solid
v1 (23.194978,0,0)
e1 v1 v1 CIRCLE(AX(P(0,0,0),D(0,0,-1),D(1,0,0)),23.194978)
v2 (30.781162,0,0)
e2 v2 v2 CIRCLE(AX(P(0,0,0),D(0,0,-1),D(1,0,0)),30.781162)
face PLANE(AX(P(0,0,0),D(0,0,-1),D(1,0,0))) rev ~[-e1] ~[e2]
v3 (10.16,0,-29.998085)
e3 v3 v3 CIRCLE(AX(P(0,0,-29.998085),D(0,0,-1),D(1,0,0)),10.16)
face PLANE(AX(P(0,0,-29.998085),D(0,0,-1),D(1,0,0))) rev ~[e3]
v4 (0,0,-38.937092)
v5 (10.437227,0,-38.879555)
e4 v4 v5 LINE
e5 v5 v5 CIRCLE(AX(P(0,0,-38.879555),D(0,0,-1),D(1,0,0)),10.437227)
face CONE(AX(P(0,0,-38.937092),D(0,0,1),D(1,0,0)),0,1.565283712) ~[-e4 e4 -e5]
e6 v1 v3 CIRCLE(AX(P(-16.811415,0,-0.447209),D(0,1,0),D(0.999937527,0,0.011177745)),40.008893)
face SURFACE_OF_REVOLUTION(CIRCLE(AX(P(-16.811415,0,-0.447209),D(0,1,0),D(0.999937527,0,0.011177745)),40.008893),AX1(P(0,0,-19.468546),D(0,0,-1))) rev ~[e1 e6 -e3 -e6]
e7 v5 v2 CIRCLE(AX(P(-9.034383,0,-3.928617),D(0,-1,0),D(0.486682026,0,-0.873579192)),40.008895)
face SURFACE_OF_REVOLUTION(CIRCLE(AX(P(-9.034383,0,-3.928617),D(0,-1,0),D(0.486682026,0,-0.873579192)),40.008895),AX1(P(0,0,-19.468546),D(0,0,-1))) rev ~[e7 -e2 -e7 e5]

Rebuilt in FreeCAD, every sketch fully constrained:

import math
import FreeCAD as App
import Part
import Sketcher

V = App.Vector
Q = App.Units.Quantity

doc = App.newDocument("Part")
body = doc.addObject("PartDesign::Body", "Body")

sketch1 = doc.addObject("Sketcher::SketchObject", "Sketch")
body.addObject(sketch1)
sketch1.AttachmentSupport = (doc.XZ_Plane, [""])
sketch1.MapMode = "FlatFace"
sketch1.addGeometry([
    Part.ArcOfCircle(Part.Circle(V(-16.811415, -0.447209, 0), V(0, 0, 1), 40.008893), math.radians(-47.612946), math.radians(0.640451)),
    Part.LineSegment(V(10.16, -29.998085, 0), V(0, -29.998085, 0)),
    Part.LineSegment(V(0, -29.998085, 0), V(0, -38.937092, 0)),
    Part.LineSegment(V(0, -38.937092, 0), V(10.437227, -38.879555, 0)),
    Part.ArcOfCircle(Part.Circle(V(-9.034383, -3.928617, 0), V(0, 0, 1), 40.008895), math.radians(-60.877267), math.radians(5.635159)),
    Part.LineSegment(V(30.781162, 0, 0), V(23.194978, 0, 0)),
], False)
sketch1.addConstraint([
    Sketcher.Constraint("Coincident", 0, 1, 1, 1),
    Sketcher.Constraint("Coincident", 1, 2, 2, 1),
    Sketcher.Constraint("Coincident", 2, 2, 3, 1),
    Sketcher.Constraint("Coincident", 3, 2, 4, 1),
    Sketcher.Constraint("Coincident", 4, 2, 5, 1),
    Sketcher.Constraint("Coincident", 5, 2, 0, 2),
    Sketcher.Constraint("Horizontal", 1),
    Sketcher.Constraint("Vertical", 2),
    Sketcher.Constraint("Horizontal", 5),
    Sketcher.Constraint("Equal", 0, 4),
    Sketcher.Constraint("PointOnObject", 1, 2, -2),
    Sketcher.Constraint("PointOnObject", 4, 2, -1),
    Sketcher.Constraint("DistanceX", 1, 2, 1, 1, Q("0.4 in")),
    Sketcher.Constraint("Radius", 0, 40.008893),
    Sketcher.Constraint("DistanceX", 5, 2, 5, 1, 7.586184),
    Sketcher.Constraint("DistanceY", 2, 2, 2, 1, 8.939007),
    Sketcher.Constraint("DistanceY", 0, 3, -1, 1, 0.447209),
    Sketcher.Constraint("DistanceX", -1, 1, 4, 2, 30.781162),
    Sketcher.Constraint("DistanceY", 3, 2, 0, 1, 8.88147),
    Sketcher.Constraint("DistanceX", 4, 3, 3, 2, 19.47161),
])
revolution = doc.addObject("PartDesign::Revolution", "Revolution")
body.addObject(revolution)
revolution.Profile = sketch1
revolution.ReferenceAxis = (sketch1, ["V_Axis"])
revolution.Angle = 360

doc.recompute()
